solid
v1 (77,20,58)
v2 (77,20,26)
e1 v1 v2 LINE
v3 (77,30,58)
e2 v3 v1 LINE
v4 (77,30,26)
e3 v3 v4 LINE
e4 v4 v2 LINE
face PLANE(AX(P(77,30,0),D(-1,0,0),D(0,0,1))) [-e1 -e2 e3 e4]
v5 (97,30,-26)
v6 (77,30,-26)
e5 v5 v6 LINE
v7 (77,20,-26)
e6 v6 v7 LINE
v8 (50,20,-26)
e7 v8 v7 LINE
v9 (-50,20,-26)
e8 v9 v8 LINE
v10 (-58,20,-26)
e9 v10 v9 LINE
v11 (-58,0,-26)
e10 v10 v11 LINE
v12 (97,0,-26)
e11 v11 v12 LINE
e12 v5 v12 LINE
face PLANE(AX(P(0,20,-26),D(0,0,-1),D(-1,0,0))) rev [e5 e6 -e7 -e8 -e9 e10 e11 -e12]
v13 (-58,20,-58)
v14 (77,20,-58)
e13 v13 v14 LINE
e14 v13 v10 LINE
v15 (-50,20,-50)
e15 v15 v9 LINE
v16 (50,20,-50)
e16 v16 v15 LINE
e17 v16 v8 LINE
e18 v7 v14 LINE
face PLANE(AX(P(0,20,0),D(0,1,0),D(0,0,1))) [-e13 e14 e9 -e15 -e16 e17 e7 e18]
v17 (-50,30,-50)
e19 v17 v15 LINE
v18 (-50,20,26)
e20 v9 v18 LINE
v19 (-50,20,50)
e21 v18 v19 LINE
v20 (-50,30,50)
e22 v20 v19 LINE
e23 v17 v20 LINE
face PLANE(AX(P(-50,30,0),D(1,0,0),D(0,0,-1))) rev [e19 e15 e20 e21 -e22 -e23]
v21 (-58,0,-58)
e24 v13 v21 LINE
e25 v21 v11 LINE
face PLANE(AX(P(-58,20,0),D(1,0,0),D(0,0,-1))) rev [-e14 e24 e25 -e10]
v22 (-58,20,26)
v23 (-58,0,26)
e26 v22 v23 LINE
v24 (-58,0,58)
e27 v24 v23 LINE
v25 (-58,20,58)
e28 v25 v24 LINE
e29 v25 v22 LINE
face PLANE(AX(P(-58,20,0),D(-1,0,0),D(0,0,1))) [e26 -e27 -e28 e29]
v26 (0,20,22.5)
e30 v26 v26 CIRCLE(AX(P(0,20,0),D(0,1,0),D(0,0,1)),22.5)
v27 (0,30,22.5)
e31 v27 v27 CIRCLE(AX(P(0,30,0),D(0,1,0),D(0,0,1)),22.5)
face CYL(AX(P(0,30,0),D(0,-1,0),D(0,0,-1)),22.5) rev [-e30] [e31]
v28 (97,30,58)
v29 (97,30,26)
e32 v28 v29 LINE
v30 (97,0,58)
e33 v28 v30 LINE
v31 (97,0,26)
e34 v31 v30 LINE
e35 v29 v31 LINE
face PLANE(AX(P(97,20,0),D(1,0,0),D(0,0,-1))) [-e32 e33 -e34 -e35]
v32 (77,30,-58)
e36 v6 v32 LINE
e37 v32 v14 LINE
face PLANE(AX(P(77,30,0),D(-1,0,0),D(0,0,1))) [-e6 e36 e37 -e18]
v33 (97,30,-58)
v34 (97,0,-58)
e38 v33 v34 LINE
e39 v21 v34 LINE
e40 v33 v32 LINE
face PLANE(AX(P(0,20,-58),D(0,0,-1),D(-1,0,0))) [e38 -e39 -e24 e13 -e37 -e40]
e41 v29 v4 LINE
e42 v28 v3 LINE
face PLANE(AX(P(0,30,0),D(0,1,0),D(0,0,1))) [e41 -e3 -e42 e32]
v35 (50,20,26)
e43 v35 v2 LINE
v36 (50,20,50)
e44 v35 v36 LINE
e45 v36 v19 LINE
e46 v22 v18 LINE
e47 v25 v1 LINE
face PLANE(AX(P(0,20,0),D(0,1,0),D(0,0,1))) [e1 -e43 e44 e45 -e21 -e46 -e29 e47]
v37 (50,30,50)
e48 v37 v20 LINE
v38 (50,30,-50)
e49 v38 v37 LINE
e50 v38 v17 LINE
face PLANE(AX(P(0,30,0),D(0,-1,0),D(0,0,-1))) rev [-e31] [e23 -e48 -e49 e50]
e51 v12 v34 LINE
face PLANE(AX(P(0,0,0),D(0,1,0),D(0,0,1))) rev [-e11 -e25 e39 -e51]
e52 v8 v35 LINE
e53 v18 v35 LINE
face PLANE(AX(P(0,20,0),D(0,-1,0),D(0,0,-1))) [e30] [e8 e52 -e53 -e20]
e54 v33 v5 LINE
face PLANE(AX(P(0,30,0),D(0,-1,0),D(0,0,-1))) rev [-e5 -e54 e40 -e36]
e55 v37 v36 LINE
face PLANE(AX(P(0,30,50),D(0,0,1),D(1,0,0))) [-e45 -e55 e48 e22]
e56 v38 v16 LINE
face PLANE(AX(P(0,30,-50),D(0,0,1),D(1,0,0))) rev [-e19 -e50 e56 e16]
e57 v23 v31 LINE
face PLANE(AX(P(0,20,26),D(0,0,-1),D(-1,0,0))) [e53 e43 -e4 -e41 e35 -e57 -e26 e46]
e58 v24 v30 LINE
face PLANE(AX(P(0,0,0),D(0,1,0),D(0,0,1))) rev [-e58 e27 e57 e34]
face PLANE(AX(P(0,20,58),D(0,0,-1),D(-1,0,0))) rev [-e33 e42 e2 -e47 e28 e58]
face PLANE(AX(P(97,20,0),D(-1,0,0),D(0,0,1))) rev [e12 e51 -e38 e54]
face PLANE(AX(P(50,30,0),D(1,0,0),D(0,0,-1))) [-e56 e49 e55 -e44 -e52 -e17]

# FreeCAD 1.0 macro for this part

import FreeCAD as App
import Part
import Sketcher

V = App.Vector
Q = App.Units.Quantity

doc = App.newDocument("Part")
body = doc.addObject("PartDesign::Body", "Body")
body.AllowCompound = True

# Sketch on XZ plane
sketch1 = doc.addObject("Sketcher::SketchObject", "Sketch")
body.addObject(sketch1)
sketch1.AttachmentSupport = (doc.XZ_Plane, [""])
sketch1.MapMode = "FlatFace"
sketch1.addGeometry(Part.LineSegment(V(-58, 26, 0), V(-58, 58, 0)), False)
sketch1.addGeometry(Part.LineSegment(V(-58, 58, 0), V(97, 58, 0)), False)
sketch1.addGeometry(Part.LineSegment(V(97, 58, 0), V(97, 26, 0)), False)
sketch1.addGeometry(Part.LineSegment(V(97, 26, 0), V(-58, 26, 0)), False)
sketch1.addGeometry(Part.LineSegment(V(-58, -26, 0), V(97, -26, 0)), False)
sketch1.addGeometry(Part.LineSegment(V(97, -26, 0), V(97, -58, 0)), False)
sketch1.addGeometry(Part.LineSegment(V(97, -58, 0), V(-58, -58, 0)), False)
sketch1.addGeometry(Part.LineSegment(V(-58, -58, 0), V(-58, -26, 0)), False)
sketch1.addConstraint(Sketcher.Constraint("Coincident", 0, 2, 1, 1))
sketch1.addConstraint(Sketcher.Constraint("Coincident", 1, 2, 2, 1))
sketch1.addConstraint(Sketcher.Constraint("Coincident", 2, 2, 3, 1))
sketch1.addConstraint(Sketcher.Constraint("Coincident", 3, 2, 0, 1))
sketch1.addConstraint(Sketcher.Constraint("Coincident", 4, 2, 5, 1))
sketch1.addConstraint(Sketcher.Constraint("Coincident", 5, 2, 6, 1))
sketch1.addConstraint(Sketcher.Constraint("Coincident", 6, 2, 7, 1))
sketch1.addConstraint(Sketcher.Constraint("Coincident", 7, 2, 4, 1))
sketch1.addConstraint(Sketcher.Constraint("Vertical", 0))
sketch1.addConstraint(Sketcher.Constraint("Horizontal", 1))
sketch1.addConstraint(Sketcher.Constraint("Vertical", 2))
sketch1.addConstraint(Sketcher.Constraint("Horizontal", 3))
sketch1.addConstraint(Sketcher.Constraint("Horizontal", 4))
sketch1.addConstraint(Sketcher.Constraint("Vertical", 5))
sketch1.addConstraint(Sketcher.Constraint("Horizontal", 6))
sketch1.addConstraint(Sketcher.Constraint("Vertical", 7))
sketch1.addConstraint(Sketcher.Constraint("Symmetric", 2, 2, 4, 2, -1))
sketch1.addConstraint(Sketcher.Constraint("Symmetric", 0, 2, 6, 2, -1))
sketch1.addConstraint(Sketcher.Constraint("DistanceX", 1, 1, 1, 2, Q("155 mm")))
sketch1.addConstraint(Sketcher.Constraint("DistanceY", 0, 1, 0, 2, Q("32 mm")))
sketch1.addConstraint(Sketcher.Constraint("DistanceX", 0, 2, -1, 1, Q("58 mm")))
sketch1.addConstraint(Sketcher.Constraint("DistanceY", -1, 1, 0, 2, Q("58 mm")))
pad1 = doc.addObject("PartDesign::Pad", "Pad")
body.addObject(pad1)
pad1.Profile = sketch1
pad1.Length = 20
pad1.Reversed = True

# Sketch on XZ plane
sketch2 = doc.addObject("Sketcher::SketchObject", "Sketch001")
body.addObject(sketch2)
sketch2.AttachmentSupport = (doc.XZ_Plane, [""])
sketch2.MapMode = "FlatFace"
sketch2.AttachmentOffset = App.Placement(V(0, 0, -20), App.Rotation())
sketch2.addGeometry(Part.LineSegment(V(77, 26, 0), V(77, 58, 0)), False)
sketch2.addGeometry(Part.LineSegment(V(77, 58, 0), V(97, 58, 0)), False)
sketch2.addGeometry(Part.LineSegment(V(97, 58, 0), V(97, 26, 0)), False)
sketch2.addGeometry(Part.LineSegment(V(97, 26, 0), V(77, 26, 0)), False)
sketch2.addGeometry(Part.LineSegment(V(77, -58, 0), V(77, -26, 0)), False)
sketch2.addGeometry(Part.LineSegment(V(77, -26, 0), V(97, -26, 0)), False)
sketch2.addGeometry(Part.LineSegment(V(97, -26, 0), V(97, -58, 0)), False)
sketch2.addGeometry(Part.LineSegment(V(97, -58, 0), V(77, -58, 0)), False)
sketch2.addConstraint(Sketcher.Constraint("Coincident", 0, 2, 1, 1))
sketch2.addConstraint(Sketcher.Constraint("Coincident", 1, 2, 2, 1))
sketch2.addConstraint(Sketcher.Constraint("Coincident", 2, 2, 3, 1))
sketch2.addConstraint(Sketcher.Constraint("Coincident", 3, 2, 0, 1))
sketch2.addConstraint(Sketcher.Constraint("Coincident", 4, 2, 5, 1))
sketch2.addConstraint(Sketcher.Constraint("Coincident", 5, 2, 6, 1))
sketch2.addConstraint(Sketcher.Constraint("Coincident", 6, 2, 7, 1))
sketch2.addConstraint(Sketcher.Constraint("Coincident", 7, 2, 4, 1))
sketch2.addConstraint(Sketcher.Constraint("Vertical", 0))
sketch2.addConstraint(Sketcher.Constraint("Horizontal", 1))
sketch2.addConstraint(Sketcher.Constraint("Vertical", 2))
sketch2.addConstraint(Sketcher.Constraint("Horizontal", 3))
sketch2.addConstraint(Sketcher.Constraint("Vertical", 4))
sketch2.addConstraint(Sketcher.Constraint("Horizontal", 5))
sketch2.addConstraint(Sketcher.Constraint("Vertical", 6))
sketch2.addConstraint(Sketcher.Constraint("Horizontal", 7))
sketch2.addConstraint(Sketcher.Constraint("Symmetric", 3, 2, 4, 2, -1))
sketch2.addConstraint(Sketcher.Constraint("Symmetric", 1, 2, 6, 2, -1))
sketch2.addConstraint(Sketcher.Constraint("DistanceX", 1, 1, 1, 2, Q("20 mm")))
sketch2.addConstraint(Sketcher.Constraint("DistanceY", 0, 1, 0, 2, Q("32 mm")))
sketch2.addConstraint(Sketcher.Constraint("DistanceX", -1, 1, 0, 2, Q("77 mm")))
sketch2.addConstraint(Sketcher.Constraint("DistanceY", -1, 1, 0, 2, Q("58 mm")))
pad2 = doc.addObject("PartDesign::Pad", "Pad001")
body.addObject(pad2)
pad2.Profile = sketch2
pad2.Length = 10
pad2.Reversed = True

# Sketch on XZ plane
sketch3 = doc.addObject("Sketcher::SketchObject", "Sketch002")
body.addObject(sketch3)
sketch3.AttachmentSupport = (doc.XZ_Plane, [""])
sketch3.MapMode = "FlatFace"
sketch3.AttachmentOffset = App.Placement(V(0, 0, -20), App.Rotation())
sketch3.addGeometry(Part.LineSegment(V(-50, 50, 0), V(50, 50, 0)), False)
sketch3.addGeometry(Part.LineSegment(V(50, 50, 0), V(50, -50, 0)), False)
sketch3.addGeometry(Part.LineSegment(V(50, -50, 0), V(-50, -50, 0)), False)
sketch3.addGeometry(Part.LineSegment(V(-50, -50, 0), V(-50, 50, 0)), False)
sketch3.addGeometry(Part.Circle(V(0, 0, 0), V(0, 0, 1), 22), False)
sketch3.addConstraint(Sketcher.Constraint("Coincident", 0, 2, 1, 1))
sketch3.addConstraint(Sketcher.Constraint("Coincident", 1, 2, 2, 1))
sketch3.addConstraint(Sketcher.Constraint("Coincident", 2, 2, 3, 1))
sketch3.addConstraint(Sketcher.Constraint("Coincident", 3, 2, 0, 1))
sketch3.addConstraint(Sketcher.Constraint("Horizontal", 0))
sketch3.addConstraint(Sketcher.Constraint("Vertical", 1))
sketch3.addConstraint(Sketcher.Constraint("Horizontal", 2))
sketch3.addConstraint(Sketcher.Constraint("Vertical", 3))
sketch3.addConstraint(Sketcher.Constraint("Coincident", 4, 3, -1, 1))
sketch3.addConstraint(Sketcher.Constraint("Symmetric", 0, 2, 2, 2, -1, 1))
sketch3.addConstraint(Sketcher.Constraint("Equal", 2, 1))
sketch3.addConstraint(Sketcher.Constraint("Diameter", 4, Q("45 mm")))
sketch3.addConstraint(Sketcher.Constraint("DistanceX", 0, 1, 0, 2, Q("100 mm")))
pad3 = doc.addObject("PartDesign::Pad", "Pad002")
body.addObject(pad3)
pad3.Profile = sketch3
pad3.Length = 10
pad3.Reversed = True

doc.recompute()
